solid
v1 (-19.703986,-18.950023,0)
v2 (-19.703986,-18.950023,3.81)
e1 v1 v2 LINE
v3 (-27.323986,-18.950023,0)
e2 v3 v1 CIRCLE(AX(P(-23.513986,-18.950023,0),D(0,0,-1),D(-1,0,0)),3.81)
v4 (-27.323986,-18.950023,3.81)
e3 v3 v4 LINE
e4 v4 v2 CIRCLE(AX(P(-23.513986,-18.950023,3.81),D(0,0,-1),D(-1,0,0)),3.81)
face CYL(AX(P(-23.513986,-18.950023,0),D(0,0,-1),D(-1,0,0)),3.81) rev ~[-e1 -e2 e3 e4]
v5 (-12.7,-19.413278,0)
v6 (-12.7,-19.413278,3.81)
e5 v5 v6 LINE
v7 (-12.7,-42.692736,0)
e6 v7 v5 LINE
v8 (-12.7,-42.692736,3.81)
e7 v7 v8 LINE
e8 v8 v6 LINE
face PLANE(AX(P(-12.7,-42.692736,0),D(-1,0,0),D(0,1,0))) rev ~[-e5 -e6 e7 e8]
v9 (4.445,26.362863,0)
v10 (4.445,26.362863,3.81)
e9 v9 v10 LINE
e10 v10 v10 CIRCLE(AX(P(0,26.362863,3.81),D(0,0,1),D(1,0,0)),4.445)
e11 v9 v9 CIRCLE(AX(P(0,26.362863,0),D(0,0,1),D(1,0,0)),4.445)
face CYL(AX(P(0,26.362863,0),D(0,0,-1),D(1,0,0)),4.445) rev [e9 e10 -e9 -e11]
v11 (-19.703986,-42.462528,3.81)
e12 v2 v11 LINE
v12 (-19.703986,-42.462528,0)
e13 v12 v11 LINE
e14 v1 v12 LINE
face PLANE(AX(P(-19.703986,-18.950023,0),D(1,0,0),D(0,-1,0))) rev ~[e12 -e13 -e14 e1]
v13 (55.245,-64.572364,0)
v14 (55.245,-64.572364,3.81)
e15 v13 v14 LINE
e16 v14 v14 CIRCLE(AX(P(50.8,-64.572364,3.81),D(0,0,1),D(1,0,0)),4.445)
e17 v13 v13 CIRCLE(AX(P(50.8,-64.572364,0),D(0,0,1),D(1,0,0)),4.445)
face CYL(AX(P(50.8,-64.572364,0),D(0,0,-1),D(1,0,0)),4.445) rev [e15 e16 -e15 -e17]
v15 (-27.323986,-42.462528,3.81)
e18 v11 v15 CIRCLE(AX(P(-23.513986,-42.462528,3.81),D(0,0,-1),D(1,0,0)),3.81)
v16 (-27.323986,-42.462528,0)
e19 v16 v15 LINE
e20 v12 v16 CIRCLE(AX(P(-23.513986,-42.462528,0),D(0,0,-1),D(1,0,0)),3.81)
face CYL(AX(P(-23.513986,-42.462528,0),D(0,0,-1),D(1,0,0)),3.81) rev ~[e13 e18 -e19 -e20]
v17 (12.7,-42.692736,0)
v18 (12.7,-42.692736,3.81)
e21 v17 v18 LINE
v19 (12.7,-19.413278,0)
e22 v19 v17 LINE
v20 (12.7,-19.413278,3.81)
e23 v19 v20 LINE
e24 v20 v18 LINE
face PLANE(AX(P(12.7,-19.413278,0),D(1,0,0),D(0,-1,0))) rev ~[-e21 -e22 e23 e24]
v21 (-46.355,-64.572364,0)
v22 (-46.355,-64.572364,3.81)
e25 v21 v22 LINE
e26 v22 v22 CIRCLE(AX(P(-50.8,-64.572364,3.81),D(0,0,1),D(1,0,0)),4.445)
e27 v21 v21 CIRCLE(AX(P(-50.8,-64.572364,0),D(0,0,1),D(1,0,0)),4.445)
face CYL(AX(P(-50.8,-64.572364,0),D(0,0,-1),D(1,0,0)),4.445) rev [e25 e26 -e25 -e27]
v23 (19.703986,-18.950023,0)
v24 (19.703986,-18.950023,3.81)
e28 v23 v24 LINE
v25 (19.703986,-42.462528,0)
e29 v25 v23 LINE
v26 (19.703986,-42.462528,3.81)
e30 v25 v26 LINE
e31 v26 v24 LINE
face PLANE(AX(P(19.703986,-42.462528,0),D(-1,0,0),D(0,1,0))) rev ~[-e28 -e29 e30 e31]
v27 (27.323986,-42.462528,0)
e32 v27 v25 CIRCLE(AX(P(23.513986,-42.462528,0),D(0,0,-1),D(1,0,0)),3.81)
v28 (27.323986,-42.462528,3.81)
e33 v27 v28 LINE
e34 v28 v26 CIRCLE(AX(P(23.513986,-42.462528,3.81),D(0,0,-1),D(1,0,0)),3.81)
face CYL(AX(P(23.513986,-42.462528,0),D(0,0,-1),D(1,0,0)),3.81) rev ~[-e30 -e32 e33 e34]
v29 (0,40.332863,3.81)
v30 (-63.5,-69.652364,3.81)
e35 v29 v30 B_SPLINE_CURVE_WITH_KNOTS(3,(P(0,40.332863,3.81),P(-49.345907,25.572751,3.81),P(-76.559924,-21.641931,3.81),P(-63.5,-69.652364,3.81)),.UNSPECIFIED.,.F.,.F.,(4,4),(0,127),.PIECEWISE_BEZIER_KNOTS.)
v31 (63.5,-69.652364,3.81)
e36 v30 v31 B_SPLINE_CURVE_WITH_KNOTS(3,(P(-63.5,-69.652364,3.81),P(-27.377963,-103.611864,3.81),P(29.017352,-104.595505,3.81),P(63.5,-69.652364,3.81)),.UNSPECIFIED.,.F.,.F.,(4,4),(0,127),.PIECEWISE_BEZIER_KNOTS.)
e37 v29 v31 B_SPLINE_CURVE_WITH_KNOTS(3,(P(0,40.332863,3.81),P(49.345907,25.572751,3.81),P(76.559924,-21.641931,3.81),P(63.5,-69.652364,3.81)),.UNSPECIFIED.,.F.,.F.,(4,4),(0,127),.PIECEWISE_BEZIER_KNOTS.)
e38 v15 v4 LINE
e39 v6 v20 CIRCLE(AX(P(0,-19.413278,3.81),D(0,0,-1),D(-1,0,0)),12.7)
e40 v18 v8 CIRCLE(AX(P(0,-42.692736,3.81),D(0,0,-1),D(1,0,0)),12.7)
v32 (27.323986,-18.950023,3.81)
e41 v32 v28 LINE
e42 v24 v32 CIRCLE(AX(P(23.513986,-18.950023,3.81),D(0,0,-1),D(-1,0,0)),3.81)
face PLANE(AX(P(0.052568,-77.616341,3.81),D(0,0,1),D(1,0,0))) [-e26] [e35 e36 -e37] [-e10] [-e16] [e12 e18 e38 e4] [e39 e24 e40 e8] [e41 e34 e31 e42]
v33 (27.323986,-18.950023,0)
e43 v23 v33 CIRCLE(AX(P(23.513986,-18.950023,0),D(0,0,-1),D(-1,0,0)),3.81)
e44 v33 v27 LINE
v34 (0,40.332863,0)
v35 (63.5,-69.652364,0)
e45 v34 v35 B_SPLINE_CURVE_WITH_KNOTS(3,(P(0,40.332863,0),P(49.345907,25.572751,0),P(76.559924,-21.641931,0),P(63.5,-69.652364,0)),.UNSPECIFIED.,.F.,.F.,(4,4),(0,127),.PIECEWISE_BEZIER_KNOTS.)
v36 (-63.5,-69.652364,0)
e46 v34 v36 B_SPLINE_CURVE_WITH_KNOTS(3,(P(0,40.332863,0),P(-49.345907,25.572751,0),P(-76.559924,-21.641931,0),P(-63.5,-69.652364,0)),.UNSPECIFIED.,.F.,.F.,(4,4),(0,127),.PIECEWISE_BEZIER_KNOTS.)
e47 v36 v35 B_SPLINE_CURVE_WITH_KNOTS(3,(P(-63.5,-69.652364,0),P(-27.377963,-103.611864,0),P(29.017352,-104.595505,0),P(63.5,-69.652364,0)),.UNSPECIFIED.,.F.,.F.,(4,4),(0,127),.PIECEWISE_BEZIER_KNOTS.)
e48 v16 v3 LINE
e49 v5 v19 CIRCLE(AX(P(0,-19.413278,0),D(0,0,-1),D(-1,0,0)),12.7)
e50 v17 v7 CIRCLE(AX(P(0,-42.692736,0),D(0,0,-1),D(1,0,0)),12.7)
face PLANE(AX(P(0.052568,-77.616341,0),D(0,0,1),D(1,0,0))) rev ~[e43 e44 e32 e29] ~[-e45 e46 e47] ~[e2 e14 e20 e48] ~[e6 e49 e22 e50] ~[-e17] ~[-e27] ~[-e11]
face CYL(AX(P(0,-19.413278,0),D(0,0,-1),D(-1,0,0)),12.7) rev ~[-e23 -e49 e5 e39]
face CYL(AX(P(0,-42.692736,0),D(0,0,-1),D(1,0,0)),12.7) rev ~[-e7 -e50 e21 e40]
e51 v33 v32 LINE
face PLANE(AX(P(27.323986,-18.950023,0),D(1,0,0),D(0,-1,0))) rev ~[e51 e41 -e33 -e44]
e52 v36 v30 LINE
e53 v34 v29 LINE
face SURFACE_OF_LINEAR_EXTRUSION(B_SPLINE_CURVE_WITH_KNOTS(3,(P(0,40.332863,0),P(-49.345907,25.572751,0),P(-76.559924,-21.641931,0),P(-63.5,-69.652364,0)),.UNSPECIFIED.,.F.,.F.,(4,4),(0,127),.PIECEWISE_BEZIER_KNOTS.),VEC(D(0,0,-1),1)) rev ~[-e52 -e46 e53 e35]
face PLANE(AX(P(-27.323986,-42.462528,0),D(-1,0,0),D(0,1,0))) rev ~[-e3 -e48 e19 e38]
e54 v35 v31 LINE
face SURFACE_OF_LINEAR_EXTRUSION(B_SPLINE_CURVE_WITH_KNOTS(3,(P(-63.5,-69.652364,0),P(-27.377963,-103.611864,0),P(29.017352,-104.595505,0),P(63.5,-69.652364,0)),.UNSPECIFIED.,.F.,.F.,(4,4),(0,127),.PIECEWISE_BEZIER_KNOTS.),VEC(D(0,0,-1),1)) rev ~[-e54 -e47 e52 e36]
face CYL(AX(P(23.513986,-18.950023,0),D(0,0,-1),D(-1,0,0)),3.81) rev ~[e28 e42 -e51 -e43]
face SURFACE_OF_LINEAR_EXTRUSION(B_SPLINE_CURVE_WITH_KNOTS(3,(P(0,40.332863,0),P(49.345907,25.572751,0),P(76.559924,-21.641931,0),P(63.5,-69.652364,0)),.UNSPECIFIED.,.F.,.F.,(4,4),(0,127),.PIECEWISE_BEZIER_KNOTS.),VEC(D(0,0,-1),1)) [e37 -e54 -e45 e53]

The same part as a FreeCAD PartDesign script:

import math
import FreeCAD as App
import Part
import Sketcher
Q = App.Units.Quantity

doc = App.newDocument("Part")
params = doc.addObject("Spreadsheet::Sheet", "Params")
for row, (alias, value) in enumerate([
    ("sketch1_radius", "0.5 in"),
    ("sketch1_diameter", "0.35 in"),
    ("sketch1_radius2", "0.15 in"),
    ("pad1_length", "0.15 in"),
], start=1):
    params.set(f"A{row}", alias)
    params.set(f"B{row}", "=" + value)
    params.setAlias(f"B{row}", alias)

body = doc.addObject("PartDesign::Body", "Body")

# Sketch on XY plane
sketch1 = body.newObject("Sketcher::SketchObject", "Sketch")
sketch1.AttachmentSupport = (doc.getObject("XY_Plane"), [""])
sketch1.MapMode = "FlatFace"
sketch1.addGeometry([
    Part.BSplineCurve([App.Vector(-63.5, -69.652364, 0), App.Vector(-27.377963, -103.611864, 0), App.Vector(29.017352, -104.595505, 0), App.Vector(63.5, -69.652364, 0)], [4, 4], [0, 127], False, 3, [1, 1, 1, 1], False),  # 0
    Part.BSplineCurve([App.Vector(0, 40.332863, 0), App.Vector(49.345907, 25.572751, 0), App.Vector(76.559924, -21.641931, 0), App.Vector(63.5, -69.652364, 0)], [4, 4], [0, 127], False, 3, [1, 1, 1, 1], False),  # 1
    Part.BSplineCurve([App.Vector(0, 40.332863, 0), App.Vector(-49.345907, 25.572751, 0), App.Vector(-76.559924, -21.641931, 0), App.Vector(-63.5, -69.652364, 0)], [4, 4], [0, 127], False, 3, [1, 1, 1, 1], False),  # 2
    Part.Circle(App.Vector(-50.8, -64.572364, 0), App.Vector(0, 0, 1), 4.445),  # 3
    Part.ArcOfCircle(Part.Circle(App.Vector(-23.513986, -18.950023, 0), App.Vector(0, 0, 1), 3.81), math.radians(0), math.radians(180)),  # 4
    Part.LineSegment(App.Vector(-19.703986, -18.950023, 0), App.Vector(-19.703986, -42.462528, 0)),  # 5
    Part.ArcOfCircle(Part.Circle(App.Vector(-23.513986, -42.462528, 0), App.Vector(0, 0, 1), 3.81), math.radians(180), math.radians(360)),  # 6
    Part.LineSegment(App.Vector(-27.323986, -42.462528, 0), App.Vector(-27.323986, -18.950023, 0)),  # 7
    Part.LineSegment(App.Vector(-12.7, -42.692736, 0), App.Vector(-12.7, -19.413278, 0)),  # 8
    Part.ArcOfCircle(Part.Circle(App.Vector(0, -19.413278, 0), App.Vector(0, 0, 1), 12.7), math.radians(0), math.radians(180)),  # 9
    Part.LineSegment(App.Vector(12.7, -19.413278, 0), App.Vector(12.7, -42.692736, 0)),  # 10
    Part.ArcOfCircle(Part.Circle(App.Vector(0, -42.692736, 0), App.Vector(0, 0, 1), 12.7), math.radians(180), math.radians(360)),  # 11
    Part.Circle(App.Vector(50.8, -64.572364, 0), App.Vector(0, 0, 1), 4.445),  # 12
    Part.ArcOfCircle(Part.Circle(App.Vector(23.513986, -42.462528, 0), App.Vector(0, 0, 1), 3.81), math.radians(180), math.radians(360)),  # 13
    Part.LineSegment(App.Vector(19.703986, -42.462528, 0), App.Vector(19.703986, -18.950023, 0)),  # 14
    Part.ArcOfCircle(Part.Circle(App.Vector(23.513986, -18.950023, 0), App.Vector(0, 0, 1), 3.81), math.radians(0), math.radians(180)),  # 15
    Part.LineSegment(App.Vector(27.323986, -18.950023, 0), App.Vector(27.323986, -42.462528, 0)),  # 16
    Part.Circle(App.Vector(0, 26.362863, 0), App.Vector(0, 0, 1), 4.445),  # 17
], False)
sketch1.addConstraint([
    Sketcher.Constraint("Block", 0),
    Sketcher.Constraint("Block", 1),
    Sketcher.Constraint("Block", 2),
    Sketcher.Constraint("Tangent", 4, 1, 5, 1),
    Sketcher.Constraint("Tangent", 5, 2, 6, 2),
    Sketcher.Constraint("Tangent", 6, 1, 7, 1),
    Sketcher.Constraint("Tangent", 7, 2, 4, 2),
    Sketcher.Constraint("Tangent", 8, 2, 9, 2),
    Sketcher.Constraint("Tangent", 9, 1, 10, 1),
    Sketcher.Constraint("Tangent", 10, 2, 11, 2),
    Sketcher.Constraint("Tangent", 11, 1, 8, 1),
    Sketcher.Constraint("Tangent", 13, 1, 14, 1),
    Sketcher.Constraint("Tangent", 14, 2, 15, 2),
    Sketcher.Constraint("Tangent", 15, 1, 16, 1),
    Sketcher.Constraint("Tangent", 16, 2, 13, 2),
    Sketcher.Constraint("Vertical", 5),
    Sketcher.Constraint("Vertical", 7),
    Sketcher.Constraint("Vertical", 8),
    Sketcher.Constraint("Vertical", 10),
    Sketcher.Constraint("Vertical", 14),
    Sketcher.Constraint("Vertical", 16),
    Sketcher.Constraint("Equal", 3, 12),
    Sketcher.Constraint("Equal", 6, 13),
    Sketcher.Constraint("Equal", 12, 17),
    Sketcher.Constraint("Symmetric", 3, 3, 12, 3, -2),
    Sketcher.Constraint("Symmetric", 6, 3, 13, 3, -2),
    Sketcher.Constraint("PointOnObject", 9, 3, -2),
    Sketcher.Constraint("PointOnObject", 17, 3, -2),
    Sketcher.Constraint("Horizontal", 4, 3, 15, 3),
    Sketcher.Constraint("Radius", 9, Q("0.5 in")),
    Sketcher.Constraint("Diameter", 3, Q("0.35 in")),
    Sketcher.Constraint("Radius", 4, Q("0.15 in")),
    Sketcher.Constraint("DistanceX", 3, 3, -1, 1, Q("2 in")),
    Sketcher.Constraint("DistanceY", 11, 3, 17, 3, 69.055599),
    Sketcher.Constraint("DistanceY", 5, 2, 5, 1, 23.512505),
    Sketcher.Constraint("DistanceY", 8, 1, 8, 2, 23.279458),
    Sketcher.Constraint("DistanceY", 3, 3, 4, 3, 45.622341),
    Sketcher.Constraint("DistanceY", 6, 3, 9, 3, 23.04925),
    Sketcher.Constraint("DistanceX", 6, 3, 13, 3, 47.027972),
    Sketcher.Constraint("DistanceY", 3, 3, -1, 1, 64.572364),
])
sketch1.setExpression("Constraints[29]", "Params.sketch1_radius")
sketch1.setExpression("Constraints[30]", "Params.sketch1_diameter")
sketch1.setExpression("Constraints[31]", "Params.sketch1_radius2")
pad1 = body.newObject("PartDesign::Pad", "Pad")
pad1.Profile = sketch1
pad1.setExpression("Length", "Params.pad1_length")

doc.recompute()
